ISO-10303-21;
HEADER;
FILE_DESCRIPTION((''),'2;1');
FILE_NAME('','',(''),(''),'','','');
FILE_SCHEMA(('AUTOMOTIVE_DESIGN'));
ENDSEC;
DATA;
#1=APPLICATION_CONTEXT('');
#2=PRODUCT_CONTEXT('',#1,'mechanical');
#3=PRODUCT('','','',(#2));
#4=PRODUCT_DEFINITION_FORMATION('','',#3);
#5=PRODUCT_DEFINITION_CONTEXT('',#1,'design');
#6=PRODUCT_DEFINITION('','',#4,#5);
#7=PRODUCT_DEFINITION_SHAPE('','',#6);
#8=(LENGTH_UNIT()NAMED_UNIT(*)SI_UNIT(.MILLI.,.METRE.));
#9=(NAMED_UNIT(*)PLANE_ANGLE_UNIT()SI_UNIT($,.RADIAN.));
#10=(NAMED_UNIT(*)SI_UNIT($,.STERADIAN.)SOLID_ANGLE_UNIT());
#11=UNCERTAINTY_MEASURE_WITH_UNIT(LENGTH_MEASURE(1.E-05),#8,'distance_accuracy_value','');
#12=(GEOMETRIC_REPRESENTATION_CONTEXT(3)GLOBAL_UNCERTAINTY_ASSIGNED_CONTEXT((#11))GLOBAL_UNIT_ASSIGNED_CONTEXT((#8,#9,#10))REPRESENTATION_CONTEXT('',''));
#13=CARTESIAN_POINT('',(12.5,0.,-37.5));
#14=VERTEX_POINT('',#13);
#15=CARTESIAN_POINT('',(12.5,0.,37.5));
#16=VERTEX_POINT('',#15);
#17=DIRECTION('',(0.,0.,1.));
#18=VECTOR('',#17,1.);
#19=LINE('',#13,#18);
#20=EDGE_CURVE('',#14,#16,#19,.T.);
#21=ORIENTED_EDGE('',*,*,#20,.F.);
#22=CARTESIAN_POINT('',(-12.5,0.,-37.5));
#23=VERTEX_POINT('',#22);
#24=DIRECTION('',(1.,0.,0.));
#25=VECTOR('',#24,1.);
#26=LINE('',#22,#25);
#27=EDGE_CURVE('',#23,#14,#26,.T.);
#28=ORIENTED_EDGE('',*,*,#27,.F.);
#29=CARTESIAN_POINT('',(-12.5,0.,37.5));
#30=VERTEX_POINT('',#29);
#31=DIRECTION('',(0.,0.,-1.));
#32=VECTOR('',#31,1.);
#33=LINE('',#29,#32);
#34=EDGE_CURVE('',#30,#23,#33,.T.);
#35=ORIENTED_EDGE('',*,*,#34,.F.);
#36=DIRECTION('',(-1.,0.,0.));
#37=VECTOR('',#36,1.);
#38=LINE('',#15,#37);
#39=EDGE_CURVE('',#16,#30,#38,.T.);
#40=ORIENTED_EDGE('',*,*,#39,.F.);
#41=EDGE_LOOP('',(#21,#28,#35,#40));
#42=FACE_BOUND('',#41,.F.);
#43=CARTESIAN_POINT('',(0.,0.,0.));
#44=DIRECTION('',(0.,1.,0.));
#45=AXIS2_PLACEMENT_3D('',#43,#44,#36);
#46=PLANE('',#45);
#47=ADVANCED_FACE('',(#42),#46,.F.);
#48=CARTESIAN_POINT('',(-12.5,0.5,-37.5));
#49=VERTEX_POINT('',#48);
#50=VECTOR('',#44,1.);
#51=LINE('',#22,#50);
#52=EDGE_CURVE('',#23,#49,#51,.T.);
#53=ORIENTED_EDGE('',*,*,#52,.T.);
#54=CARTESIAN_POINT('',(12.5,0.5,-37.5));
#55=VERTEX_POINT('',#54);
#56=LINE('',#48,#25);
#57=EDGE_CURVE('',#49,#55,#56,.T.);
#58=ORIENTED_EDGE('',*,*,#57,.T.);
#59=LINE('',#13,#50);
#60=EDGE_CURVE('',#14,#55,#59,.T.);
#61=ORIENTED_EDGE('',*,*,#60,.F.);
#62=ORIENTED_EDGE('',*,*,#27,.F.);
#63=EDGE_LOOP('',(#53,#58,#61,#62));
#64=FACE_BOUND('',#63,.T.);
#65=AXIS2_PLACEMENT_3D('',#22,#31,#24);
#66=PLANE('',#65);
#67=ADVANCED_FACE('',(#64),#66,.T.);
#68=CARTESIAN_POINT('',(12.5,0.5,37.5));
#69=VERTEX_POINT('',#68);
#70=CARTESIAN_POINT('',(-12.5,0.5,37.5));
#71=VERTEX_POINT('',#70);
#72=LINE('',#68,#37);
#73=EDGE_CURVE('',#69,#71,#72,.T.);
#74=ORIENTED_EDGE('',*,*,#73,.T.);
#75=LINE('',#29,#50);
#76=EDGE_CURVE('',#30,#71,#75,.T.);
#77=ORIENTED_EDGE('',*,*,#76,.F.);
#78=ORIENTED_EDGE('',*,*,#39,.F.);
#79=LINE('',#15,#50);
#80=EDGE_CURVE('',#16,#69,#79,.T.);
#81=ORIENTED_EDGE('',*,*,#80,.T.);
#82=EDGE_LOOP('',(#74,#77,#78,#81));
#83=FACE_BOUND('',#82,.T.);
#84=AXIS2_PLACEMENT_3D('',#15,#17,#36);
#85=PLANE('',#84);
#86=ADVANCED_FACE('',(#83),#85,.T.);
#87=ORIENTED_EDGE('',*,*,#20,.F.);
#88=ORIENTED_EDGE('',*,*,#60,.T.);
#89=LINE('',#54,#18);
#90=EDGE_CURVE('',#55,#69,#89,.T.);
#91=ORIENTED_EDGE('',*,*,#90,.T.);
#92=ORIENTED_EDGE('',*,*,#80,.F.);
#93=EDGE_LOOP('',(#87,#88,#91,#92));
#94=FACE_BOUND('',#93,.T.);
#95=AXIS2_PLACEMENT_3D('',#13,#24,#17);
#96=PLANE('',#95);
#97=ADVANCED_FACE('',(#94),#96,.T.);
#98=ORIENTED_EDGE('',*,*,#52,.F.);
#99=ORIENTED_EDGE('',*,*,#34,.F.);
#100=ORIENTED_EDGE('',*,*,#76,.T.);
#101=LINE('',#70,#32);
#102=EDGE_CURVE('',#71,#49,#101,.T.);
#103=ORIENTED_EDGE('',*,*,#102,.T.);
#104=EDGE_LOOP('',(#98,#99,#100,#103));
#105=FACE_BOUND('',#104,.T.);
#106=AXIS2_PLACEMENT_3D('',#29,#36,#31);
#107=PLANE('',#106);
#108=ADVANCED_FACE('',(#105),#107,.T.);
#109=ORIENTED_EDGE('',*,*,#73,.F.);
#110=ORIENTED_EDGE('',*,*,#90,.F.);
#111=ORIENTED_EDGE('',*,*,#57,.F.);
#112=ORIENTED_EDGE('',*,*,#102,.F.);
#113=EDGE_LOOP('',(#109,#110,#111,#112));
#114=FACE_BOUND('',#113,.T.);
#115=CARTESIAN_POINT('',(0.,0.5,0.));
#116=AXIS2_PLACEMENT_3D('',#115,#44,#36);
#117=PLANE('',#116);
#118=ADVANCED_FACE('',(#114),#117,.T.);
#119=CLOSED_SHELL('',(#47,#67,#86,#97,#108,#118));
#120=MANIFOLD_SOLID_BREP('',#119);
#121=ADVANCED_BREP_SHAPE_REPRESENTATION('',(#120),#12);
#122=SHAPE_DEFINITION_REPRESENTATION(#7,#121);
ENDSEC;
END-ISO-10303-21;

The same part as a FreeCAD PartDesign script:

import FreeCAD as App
import Part
import Sketcher

V = App.Vector

doc = App.newDocument("Part")
params = doc.addObject("Spreadsheet::Sheet", "Params")
for row, (alias, value) in enumerate([
    ("sketch1_width", "25 mm"),
    ("sketch1_height", "75 mm"),
    ("pad1_length", "0.5 mm"),
], start=1):
    params.set(f"A{row}", alias)
    params.set(f"B{row}", "=" + value)
    params.setAlias(f"B{row}", alias)

body = doc.addObject("PartDesign::Body", "Body")

# Sketch on XZ plane
sketch1 = body.newObject("Sketcher::SketchObject", "Sketch")
sketch1.AttachmentSupport = (doc.getObject("XZ_Plane"), [""])
sketch1.MapMode = "FlatFace"
sketch1.addGeometry([
    Part.LineSegment(V(-12, 38, 0), V(12, 38, 0)),
    Part.LineSegment(V(12, 38, 0), V(12, -38, 0)),
    Part.LineSegment(V(12, -38, 0), V(-12, -38, 0)),
    Part.LineSegment(V(-12, -38, 0), V(-12, 38, 0)),
], False)
sketch1.addConstraint([
    Sketcher.Constraint("Coincident", 0, 2, 1, 1),
    Sketcher.Constraint("Coincident", 1, 2, 2, 1),
    Sketcher.Constraint("Coincident", 2, 2, 3, 1),
    Sketcher.Constraint("Coincident", 3, 2, 0, 1),
    Sketcher.Constraint("Horizontal", 0),
    Sketcher.Constraint("Vertical", 1),
    Sketcher.Constraint("Horizontal", 2),
    Sketcher.Constraint("Vertical", 3),
    Sketcher.Constraint("Symmetric", 0, 2, 2, 2, -1, 1),
    Sketcher.Constraint("DistanceX", 0, 1, 0, 2, 25.0),
    Sketcher.Constraint("DistanceY", 1, 2, 1, 1, 75.0),
])
sketch1.setExpression("Constraints[9]", "Params.sketch1_width")
sketch1.setExpression("Constraints[10]", "Params.sketch1_height")
pad1 = body.newObject("PartDesign::Pad", "Pad")
pad1.Profile = sketch1
pad1.setExpression("Length", "Params.pad1_length")
pad1.Reversed = True

doc.recompute()
